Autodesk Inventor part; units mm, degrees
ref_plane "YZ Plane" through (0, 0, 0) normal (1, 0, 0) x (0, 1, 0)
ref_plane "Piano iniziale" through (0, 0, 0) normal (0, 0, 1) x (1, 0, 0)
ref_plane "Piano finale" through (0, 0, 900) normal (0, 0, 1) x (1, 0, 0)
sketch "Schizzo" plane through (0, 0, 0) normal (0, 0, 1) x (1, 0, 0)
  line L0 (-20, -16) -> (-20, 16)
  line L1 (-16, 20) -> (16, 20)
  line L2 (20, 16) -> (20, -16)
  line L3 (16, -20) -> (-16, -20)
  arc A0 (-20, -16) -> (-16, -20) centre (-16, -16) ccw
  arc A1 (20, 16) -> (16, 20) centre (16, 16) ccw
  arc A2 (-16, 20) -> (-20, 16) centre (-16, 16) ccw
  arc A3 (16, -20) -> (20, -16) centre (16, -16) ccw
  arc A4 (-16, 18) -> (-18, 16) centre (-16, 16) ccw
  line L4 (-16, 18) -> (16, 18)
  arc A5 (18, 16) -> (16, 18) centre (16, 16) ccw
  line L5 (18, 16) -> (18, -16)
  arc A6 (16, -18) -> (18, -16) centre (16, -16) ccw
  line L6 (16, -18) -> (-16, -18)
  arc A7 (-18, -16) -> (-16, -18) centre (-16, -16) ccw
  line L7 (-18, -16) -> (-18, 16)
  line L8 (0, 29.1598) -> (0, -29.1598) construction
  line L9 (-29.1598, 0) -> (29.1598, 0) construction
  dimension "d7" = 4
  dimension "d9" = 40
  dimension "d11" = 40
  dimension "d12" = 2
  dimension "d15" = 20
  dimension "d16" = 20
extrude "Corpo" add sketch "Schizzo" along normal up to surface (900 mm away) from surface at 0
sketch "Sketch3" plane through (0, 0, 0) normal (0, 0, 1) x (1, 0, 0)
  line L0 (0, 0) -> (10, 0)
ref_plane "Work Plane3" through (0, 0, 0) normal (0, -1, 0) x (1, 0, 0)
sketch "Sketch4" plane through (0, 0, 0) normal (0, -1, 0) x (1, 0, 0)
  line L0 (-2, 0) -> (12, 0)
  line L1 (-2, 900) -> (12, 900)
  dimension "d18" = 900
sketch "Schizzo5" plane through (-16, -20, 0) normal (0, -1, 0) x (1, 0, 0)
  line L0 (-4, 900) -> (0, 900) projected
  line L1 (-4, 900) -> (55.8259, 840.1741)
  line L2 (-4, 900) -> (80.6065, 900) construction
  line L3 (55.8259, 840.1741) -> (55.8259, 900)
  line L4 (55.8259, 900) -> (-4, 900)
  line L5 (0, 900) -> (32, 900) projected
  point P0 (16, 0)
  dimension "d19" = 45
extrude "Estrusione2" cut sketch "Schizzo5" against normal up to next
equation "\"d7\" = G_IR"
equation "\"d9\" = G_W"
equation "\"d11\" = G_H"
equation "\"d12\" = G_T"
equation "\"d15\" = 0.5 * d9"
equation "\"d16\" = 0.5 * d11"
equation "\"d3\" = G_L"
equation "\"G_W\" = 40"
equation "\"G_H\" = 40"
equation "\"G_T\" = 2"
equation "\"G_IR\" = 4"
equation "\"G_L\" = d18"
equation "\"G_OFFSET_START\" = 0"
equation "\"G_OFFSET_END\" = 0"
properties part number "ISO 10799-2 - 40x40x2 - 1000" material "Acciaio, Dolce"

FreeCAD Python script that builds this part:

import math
import FreeCAD as App
import Part
import Sketcher

V = App.Vector

doc = App.newDocument("Part")
body = doc.addObject("PartDesign::Body", "Body")

# Sketch on XY plane
sketch1 = body.newObject("Sketcher::SketchObject", "Sketch")
sketch1.AttachmentSupport = (doc.getObject("XY_Plane"), [""])
sketch1.MapMode = "FlatFace"
sketch1.addGeometry(Part.LineSegment(V(-20, 16, 0), V(-20, -16, 0)), False)
sketch1.addGeometry(Part.ArcOfCircle(Part.Circle(V(-16, -16, 0), V(0, 0, 1), 4), math.radians(180), math.radians(270)), False)
sketch1.addGeometry(Part.LineSegment(V(-16, -20, 0), V(16, -20, 0)), False)
sketch1.addGeometry(Part.ArcOfCircle(Part.Circle(V(16, -16, 0), V(0, 0, 1), 4), math.radians(-90), math.radians(0)), False)
sketch1.addGeometry(Part.LineSegment(V(20, -16, 0), V(20, 16, 0)), False)
sketch1.addGeometry(Part.ArcOfCircle(Part.Circle(V(16, 16, 0), V(0, 0, 1), 4), math.radians(0), math.radians(90)), False)
sketch1.addGeometry(Part.LineSegment(V(16, 20, 0), V(-16, 20, 0)), False)
sketch1.addGeometry(Part.ArcOfCircle(Part.Circle(V(-16, 16, 0), V(0, 0, 1), 4), math.radians(90), math.radians(180)), False)
sketch1.addGeometry(Part.ArcOfCircle(Part.Circle(V(-16, 16, 0), V(0, 0, 1), 2), math.radians(90), math.radians(180)), False)
sketch1.addGeometry(Part.LineSegment(V(-16, 18, 0), V(16, 18, 0)), False)
sketch1.addGeometry(Part.ArcOfCircle(Part.Circle(V(16, 16, 0), V(0, 0, 1), 2), math.radians(0), math.radians(90)), False)
sketch1.addGeometry(Part.LineSegment(V(18, 16, 0), V(18, -16, 0)), False)
sketch1.addGeometry(Part.ArcOfCircle(Part.Circle(V(16, -16, 0), V(0, 0, 1), 2), math.radians(-90), math.radians(0)), False)
sketch1.addGeometry(Part.LineSegment(V(16, -18, 0), V(-16, -18, 0)), False)
sketch1.addGeometry(Part.ArcOfCircle(Part.Circle(V(-16, -16, 0), V(0, 0, 1), 2), math.radians(180), math.radians(270)), False)
sketch1.addGeometry(Part.LineSegment(V(-18, -16, 0), V(-18, 16, 0)), False)
sketch1.addConstraint(Sketcher.Constraint("Tangent", 0, 2, 1, 1))
sketch1.addConstraint(Sketcher.Constraint("Tangent", 1, 2, 2, 1))
sketch1.addConstraint(Sketcher.Constraint("Tangent", 2, 2, 3, 1))
sketch1.addConstraint(Sketcher.Constraint("Tangent", 3, 2, 4, 1))
sketch1.addConstraint(Sketcher.Constraint("Tangent", 4, 2, 5, 1))
sketch1.addConstraint(Sketcher.Constraint("Tangent", 5, 2, 6, 1))
sketch1.addConstraint(Sketcher.Constraint("Tangent", 6, 2, 7, 1))
sketch1.addConstraint(Sketcher.Constraint("Tangent", 7, 2, 0, 1))
sketch1.addConstraint(Sketcher.Constraint("Tangent", 8, 1, 9, 1))
sketch1.addConstraint(Sketcher.Constraint("Tangent", 9, 2, 10, 2))
sketch1.addConstraint(Sketcher.Constraint("Tangent", 10, 1, 11, 1))
sketch1.addConstraint(Sketcher.Constraint("Tangent", 11, 2, 12, 2))
sketch1.addConstraint(Sketcher.Constraint("Tangent", 12, 1, 13, 1))
sketch1.addConstraint(Sketcher.Constraint("Tangent", 13, 2, 14, 2))
sketch1.addConstraint(Sketcher.Constraint("Tangent", 14, 1, 15, 1))
sketch1.addConstraint(Sketcher.Constraint("Tangent", 15, 2, 8, 2))
sketch1.addConstraint(Sketcher.Constraint("Vertical", 0))
sketch1.addConstraint(Sketcher.Constraint("Horizontal", 2))
sketch1.addConstraint(Sketcher.Constraint("Vertical", 4))
sketch1.addConstraint(Sketcher.Constraint("Horizontal", 6))
sketch1.addConstraint(Sketcher.Constraint("Horizontal", 9))
sketch1.addConstraint(Sketcher.Constraint("Vertical", 11))
sketch1.addConstraint(Sketcher.Constraint("Horizontal", 13))
sketch1.addConstraint(Sketcher.Constraint("Vertical", 15))
sketch1.addConstraint(Sketcher.Constraint("Coincident", 8, 3, 7, 3))
sketch1.addConstraint(Sketcher.Constraint("Coincident", 10, 3, 5, 3))
sketch1.addConstraint(Sketcher.Constraint("Coincident", 12, 3, 3, 3))
sketch1.addConstraint(Sketcher.Constraint("Equal", 1, 3))
sketch1.addConstraint(Sketcher.Constraint("Equal", 3, 5))
sketch1.addConstraint(Sketcher.Constraint("Equal", 5, 7))
sketch1.addConstraint(Sketcher.Constraint("Equal", 12, 14))
sketch1.addConstraint(Sketcher.Constraint("Symmetric", 1, 3, 5, 3, -1, 1))
sketch1.addConstraint(Sketcher.Constraint("Equal", 13, 0))
sketch1.addConstraint(Sketcher.Constraint("Radius", 1, 4.0))
sketch1.addConstraint(Sketcher.Constraint("Radius", 8, 2.0))
sketch1.addConstraint(Sketcher.Constraint("DistanceX", 0, 2, -1, 1, 20.0))
pad1 = body.newObject("PartDesign::Pad", "Pad")
pad1.Profile = sketch1
pad1.Length = 900

# Sketch on XZ plane
sketch2 = body.newObject("Sketcher::SketchObject", "Sketch001")
sketch2.AttachmentSupport = (doc.getObject("XZ_Plane"), [""])
sketch2.MapMode = "FlatFace"
sketch2.AttachmentOffset = App.Placement(V(0, 0, 20), App.Rotation())
sketch2.addGeometry(Part.LineSegment(V(40, 900, 0), V(-20, 900, 0)), False)
sketch2.addGeometry(Part.LineSegment(V(-20, 900, 0), V(40, 840, 0)), False)
sketch2.addGeometry(Part.LineSegment(V(40, 840, 0), V(40, 900, 0)), False)
sketch2.addConstraint(Sketcher.Constraint("Coincident", 0, 2, 1, 1))
sketch2.addConstraint(Sketcher.Constraint("Coincident", 1, 2, 2, 1))
sketch2.addConstraint(Sketcher.Constraint("Coincident", 2, 2, 0, 1))
sketch2.addConstraint(Sketcher.Constraint("Horizontal", 0))
sketch2.addConstraint(Sketcher.Constraint("Vertical", 2))
sketch2.addConstraint(Sketcher.Constraint("Equal", 0, 2))
sketch2.addConstraint(Sketcher.Constraint("DistanceX", 0, 2, -1, 1, 20.0))
sketch2.addConstraint(Sketcher.Constraint("DistanceY", -1, 1, 0, 2, 900.0))
sketch2.addConstraint(Sketcher.Constraint("DistanceX", 0, 2, 0, 1, 59.826))
pocket1 = body.newObject("PartDesign::Pocket", "Pocket")
pocket1.Profile = sketch2
pocket1.Length = 40

doc.recompute()
